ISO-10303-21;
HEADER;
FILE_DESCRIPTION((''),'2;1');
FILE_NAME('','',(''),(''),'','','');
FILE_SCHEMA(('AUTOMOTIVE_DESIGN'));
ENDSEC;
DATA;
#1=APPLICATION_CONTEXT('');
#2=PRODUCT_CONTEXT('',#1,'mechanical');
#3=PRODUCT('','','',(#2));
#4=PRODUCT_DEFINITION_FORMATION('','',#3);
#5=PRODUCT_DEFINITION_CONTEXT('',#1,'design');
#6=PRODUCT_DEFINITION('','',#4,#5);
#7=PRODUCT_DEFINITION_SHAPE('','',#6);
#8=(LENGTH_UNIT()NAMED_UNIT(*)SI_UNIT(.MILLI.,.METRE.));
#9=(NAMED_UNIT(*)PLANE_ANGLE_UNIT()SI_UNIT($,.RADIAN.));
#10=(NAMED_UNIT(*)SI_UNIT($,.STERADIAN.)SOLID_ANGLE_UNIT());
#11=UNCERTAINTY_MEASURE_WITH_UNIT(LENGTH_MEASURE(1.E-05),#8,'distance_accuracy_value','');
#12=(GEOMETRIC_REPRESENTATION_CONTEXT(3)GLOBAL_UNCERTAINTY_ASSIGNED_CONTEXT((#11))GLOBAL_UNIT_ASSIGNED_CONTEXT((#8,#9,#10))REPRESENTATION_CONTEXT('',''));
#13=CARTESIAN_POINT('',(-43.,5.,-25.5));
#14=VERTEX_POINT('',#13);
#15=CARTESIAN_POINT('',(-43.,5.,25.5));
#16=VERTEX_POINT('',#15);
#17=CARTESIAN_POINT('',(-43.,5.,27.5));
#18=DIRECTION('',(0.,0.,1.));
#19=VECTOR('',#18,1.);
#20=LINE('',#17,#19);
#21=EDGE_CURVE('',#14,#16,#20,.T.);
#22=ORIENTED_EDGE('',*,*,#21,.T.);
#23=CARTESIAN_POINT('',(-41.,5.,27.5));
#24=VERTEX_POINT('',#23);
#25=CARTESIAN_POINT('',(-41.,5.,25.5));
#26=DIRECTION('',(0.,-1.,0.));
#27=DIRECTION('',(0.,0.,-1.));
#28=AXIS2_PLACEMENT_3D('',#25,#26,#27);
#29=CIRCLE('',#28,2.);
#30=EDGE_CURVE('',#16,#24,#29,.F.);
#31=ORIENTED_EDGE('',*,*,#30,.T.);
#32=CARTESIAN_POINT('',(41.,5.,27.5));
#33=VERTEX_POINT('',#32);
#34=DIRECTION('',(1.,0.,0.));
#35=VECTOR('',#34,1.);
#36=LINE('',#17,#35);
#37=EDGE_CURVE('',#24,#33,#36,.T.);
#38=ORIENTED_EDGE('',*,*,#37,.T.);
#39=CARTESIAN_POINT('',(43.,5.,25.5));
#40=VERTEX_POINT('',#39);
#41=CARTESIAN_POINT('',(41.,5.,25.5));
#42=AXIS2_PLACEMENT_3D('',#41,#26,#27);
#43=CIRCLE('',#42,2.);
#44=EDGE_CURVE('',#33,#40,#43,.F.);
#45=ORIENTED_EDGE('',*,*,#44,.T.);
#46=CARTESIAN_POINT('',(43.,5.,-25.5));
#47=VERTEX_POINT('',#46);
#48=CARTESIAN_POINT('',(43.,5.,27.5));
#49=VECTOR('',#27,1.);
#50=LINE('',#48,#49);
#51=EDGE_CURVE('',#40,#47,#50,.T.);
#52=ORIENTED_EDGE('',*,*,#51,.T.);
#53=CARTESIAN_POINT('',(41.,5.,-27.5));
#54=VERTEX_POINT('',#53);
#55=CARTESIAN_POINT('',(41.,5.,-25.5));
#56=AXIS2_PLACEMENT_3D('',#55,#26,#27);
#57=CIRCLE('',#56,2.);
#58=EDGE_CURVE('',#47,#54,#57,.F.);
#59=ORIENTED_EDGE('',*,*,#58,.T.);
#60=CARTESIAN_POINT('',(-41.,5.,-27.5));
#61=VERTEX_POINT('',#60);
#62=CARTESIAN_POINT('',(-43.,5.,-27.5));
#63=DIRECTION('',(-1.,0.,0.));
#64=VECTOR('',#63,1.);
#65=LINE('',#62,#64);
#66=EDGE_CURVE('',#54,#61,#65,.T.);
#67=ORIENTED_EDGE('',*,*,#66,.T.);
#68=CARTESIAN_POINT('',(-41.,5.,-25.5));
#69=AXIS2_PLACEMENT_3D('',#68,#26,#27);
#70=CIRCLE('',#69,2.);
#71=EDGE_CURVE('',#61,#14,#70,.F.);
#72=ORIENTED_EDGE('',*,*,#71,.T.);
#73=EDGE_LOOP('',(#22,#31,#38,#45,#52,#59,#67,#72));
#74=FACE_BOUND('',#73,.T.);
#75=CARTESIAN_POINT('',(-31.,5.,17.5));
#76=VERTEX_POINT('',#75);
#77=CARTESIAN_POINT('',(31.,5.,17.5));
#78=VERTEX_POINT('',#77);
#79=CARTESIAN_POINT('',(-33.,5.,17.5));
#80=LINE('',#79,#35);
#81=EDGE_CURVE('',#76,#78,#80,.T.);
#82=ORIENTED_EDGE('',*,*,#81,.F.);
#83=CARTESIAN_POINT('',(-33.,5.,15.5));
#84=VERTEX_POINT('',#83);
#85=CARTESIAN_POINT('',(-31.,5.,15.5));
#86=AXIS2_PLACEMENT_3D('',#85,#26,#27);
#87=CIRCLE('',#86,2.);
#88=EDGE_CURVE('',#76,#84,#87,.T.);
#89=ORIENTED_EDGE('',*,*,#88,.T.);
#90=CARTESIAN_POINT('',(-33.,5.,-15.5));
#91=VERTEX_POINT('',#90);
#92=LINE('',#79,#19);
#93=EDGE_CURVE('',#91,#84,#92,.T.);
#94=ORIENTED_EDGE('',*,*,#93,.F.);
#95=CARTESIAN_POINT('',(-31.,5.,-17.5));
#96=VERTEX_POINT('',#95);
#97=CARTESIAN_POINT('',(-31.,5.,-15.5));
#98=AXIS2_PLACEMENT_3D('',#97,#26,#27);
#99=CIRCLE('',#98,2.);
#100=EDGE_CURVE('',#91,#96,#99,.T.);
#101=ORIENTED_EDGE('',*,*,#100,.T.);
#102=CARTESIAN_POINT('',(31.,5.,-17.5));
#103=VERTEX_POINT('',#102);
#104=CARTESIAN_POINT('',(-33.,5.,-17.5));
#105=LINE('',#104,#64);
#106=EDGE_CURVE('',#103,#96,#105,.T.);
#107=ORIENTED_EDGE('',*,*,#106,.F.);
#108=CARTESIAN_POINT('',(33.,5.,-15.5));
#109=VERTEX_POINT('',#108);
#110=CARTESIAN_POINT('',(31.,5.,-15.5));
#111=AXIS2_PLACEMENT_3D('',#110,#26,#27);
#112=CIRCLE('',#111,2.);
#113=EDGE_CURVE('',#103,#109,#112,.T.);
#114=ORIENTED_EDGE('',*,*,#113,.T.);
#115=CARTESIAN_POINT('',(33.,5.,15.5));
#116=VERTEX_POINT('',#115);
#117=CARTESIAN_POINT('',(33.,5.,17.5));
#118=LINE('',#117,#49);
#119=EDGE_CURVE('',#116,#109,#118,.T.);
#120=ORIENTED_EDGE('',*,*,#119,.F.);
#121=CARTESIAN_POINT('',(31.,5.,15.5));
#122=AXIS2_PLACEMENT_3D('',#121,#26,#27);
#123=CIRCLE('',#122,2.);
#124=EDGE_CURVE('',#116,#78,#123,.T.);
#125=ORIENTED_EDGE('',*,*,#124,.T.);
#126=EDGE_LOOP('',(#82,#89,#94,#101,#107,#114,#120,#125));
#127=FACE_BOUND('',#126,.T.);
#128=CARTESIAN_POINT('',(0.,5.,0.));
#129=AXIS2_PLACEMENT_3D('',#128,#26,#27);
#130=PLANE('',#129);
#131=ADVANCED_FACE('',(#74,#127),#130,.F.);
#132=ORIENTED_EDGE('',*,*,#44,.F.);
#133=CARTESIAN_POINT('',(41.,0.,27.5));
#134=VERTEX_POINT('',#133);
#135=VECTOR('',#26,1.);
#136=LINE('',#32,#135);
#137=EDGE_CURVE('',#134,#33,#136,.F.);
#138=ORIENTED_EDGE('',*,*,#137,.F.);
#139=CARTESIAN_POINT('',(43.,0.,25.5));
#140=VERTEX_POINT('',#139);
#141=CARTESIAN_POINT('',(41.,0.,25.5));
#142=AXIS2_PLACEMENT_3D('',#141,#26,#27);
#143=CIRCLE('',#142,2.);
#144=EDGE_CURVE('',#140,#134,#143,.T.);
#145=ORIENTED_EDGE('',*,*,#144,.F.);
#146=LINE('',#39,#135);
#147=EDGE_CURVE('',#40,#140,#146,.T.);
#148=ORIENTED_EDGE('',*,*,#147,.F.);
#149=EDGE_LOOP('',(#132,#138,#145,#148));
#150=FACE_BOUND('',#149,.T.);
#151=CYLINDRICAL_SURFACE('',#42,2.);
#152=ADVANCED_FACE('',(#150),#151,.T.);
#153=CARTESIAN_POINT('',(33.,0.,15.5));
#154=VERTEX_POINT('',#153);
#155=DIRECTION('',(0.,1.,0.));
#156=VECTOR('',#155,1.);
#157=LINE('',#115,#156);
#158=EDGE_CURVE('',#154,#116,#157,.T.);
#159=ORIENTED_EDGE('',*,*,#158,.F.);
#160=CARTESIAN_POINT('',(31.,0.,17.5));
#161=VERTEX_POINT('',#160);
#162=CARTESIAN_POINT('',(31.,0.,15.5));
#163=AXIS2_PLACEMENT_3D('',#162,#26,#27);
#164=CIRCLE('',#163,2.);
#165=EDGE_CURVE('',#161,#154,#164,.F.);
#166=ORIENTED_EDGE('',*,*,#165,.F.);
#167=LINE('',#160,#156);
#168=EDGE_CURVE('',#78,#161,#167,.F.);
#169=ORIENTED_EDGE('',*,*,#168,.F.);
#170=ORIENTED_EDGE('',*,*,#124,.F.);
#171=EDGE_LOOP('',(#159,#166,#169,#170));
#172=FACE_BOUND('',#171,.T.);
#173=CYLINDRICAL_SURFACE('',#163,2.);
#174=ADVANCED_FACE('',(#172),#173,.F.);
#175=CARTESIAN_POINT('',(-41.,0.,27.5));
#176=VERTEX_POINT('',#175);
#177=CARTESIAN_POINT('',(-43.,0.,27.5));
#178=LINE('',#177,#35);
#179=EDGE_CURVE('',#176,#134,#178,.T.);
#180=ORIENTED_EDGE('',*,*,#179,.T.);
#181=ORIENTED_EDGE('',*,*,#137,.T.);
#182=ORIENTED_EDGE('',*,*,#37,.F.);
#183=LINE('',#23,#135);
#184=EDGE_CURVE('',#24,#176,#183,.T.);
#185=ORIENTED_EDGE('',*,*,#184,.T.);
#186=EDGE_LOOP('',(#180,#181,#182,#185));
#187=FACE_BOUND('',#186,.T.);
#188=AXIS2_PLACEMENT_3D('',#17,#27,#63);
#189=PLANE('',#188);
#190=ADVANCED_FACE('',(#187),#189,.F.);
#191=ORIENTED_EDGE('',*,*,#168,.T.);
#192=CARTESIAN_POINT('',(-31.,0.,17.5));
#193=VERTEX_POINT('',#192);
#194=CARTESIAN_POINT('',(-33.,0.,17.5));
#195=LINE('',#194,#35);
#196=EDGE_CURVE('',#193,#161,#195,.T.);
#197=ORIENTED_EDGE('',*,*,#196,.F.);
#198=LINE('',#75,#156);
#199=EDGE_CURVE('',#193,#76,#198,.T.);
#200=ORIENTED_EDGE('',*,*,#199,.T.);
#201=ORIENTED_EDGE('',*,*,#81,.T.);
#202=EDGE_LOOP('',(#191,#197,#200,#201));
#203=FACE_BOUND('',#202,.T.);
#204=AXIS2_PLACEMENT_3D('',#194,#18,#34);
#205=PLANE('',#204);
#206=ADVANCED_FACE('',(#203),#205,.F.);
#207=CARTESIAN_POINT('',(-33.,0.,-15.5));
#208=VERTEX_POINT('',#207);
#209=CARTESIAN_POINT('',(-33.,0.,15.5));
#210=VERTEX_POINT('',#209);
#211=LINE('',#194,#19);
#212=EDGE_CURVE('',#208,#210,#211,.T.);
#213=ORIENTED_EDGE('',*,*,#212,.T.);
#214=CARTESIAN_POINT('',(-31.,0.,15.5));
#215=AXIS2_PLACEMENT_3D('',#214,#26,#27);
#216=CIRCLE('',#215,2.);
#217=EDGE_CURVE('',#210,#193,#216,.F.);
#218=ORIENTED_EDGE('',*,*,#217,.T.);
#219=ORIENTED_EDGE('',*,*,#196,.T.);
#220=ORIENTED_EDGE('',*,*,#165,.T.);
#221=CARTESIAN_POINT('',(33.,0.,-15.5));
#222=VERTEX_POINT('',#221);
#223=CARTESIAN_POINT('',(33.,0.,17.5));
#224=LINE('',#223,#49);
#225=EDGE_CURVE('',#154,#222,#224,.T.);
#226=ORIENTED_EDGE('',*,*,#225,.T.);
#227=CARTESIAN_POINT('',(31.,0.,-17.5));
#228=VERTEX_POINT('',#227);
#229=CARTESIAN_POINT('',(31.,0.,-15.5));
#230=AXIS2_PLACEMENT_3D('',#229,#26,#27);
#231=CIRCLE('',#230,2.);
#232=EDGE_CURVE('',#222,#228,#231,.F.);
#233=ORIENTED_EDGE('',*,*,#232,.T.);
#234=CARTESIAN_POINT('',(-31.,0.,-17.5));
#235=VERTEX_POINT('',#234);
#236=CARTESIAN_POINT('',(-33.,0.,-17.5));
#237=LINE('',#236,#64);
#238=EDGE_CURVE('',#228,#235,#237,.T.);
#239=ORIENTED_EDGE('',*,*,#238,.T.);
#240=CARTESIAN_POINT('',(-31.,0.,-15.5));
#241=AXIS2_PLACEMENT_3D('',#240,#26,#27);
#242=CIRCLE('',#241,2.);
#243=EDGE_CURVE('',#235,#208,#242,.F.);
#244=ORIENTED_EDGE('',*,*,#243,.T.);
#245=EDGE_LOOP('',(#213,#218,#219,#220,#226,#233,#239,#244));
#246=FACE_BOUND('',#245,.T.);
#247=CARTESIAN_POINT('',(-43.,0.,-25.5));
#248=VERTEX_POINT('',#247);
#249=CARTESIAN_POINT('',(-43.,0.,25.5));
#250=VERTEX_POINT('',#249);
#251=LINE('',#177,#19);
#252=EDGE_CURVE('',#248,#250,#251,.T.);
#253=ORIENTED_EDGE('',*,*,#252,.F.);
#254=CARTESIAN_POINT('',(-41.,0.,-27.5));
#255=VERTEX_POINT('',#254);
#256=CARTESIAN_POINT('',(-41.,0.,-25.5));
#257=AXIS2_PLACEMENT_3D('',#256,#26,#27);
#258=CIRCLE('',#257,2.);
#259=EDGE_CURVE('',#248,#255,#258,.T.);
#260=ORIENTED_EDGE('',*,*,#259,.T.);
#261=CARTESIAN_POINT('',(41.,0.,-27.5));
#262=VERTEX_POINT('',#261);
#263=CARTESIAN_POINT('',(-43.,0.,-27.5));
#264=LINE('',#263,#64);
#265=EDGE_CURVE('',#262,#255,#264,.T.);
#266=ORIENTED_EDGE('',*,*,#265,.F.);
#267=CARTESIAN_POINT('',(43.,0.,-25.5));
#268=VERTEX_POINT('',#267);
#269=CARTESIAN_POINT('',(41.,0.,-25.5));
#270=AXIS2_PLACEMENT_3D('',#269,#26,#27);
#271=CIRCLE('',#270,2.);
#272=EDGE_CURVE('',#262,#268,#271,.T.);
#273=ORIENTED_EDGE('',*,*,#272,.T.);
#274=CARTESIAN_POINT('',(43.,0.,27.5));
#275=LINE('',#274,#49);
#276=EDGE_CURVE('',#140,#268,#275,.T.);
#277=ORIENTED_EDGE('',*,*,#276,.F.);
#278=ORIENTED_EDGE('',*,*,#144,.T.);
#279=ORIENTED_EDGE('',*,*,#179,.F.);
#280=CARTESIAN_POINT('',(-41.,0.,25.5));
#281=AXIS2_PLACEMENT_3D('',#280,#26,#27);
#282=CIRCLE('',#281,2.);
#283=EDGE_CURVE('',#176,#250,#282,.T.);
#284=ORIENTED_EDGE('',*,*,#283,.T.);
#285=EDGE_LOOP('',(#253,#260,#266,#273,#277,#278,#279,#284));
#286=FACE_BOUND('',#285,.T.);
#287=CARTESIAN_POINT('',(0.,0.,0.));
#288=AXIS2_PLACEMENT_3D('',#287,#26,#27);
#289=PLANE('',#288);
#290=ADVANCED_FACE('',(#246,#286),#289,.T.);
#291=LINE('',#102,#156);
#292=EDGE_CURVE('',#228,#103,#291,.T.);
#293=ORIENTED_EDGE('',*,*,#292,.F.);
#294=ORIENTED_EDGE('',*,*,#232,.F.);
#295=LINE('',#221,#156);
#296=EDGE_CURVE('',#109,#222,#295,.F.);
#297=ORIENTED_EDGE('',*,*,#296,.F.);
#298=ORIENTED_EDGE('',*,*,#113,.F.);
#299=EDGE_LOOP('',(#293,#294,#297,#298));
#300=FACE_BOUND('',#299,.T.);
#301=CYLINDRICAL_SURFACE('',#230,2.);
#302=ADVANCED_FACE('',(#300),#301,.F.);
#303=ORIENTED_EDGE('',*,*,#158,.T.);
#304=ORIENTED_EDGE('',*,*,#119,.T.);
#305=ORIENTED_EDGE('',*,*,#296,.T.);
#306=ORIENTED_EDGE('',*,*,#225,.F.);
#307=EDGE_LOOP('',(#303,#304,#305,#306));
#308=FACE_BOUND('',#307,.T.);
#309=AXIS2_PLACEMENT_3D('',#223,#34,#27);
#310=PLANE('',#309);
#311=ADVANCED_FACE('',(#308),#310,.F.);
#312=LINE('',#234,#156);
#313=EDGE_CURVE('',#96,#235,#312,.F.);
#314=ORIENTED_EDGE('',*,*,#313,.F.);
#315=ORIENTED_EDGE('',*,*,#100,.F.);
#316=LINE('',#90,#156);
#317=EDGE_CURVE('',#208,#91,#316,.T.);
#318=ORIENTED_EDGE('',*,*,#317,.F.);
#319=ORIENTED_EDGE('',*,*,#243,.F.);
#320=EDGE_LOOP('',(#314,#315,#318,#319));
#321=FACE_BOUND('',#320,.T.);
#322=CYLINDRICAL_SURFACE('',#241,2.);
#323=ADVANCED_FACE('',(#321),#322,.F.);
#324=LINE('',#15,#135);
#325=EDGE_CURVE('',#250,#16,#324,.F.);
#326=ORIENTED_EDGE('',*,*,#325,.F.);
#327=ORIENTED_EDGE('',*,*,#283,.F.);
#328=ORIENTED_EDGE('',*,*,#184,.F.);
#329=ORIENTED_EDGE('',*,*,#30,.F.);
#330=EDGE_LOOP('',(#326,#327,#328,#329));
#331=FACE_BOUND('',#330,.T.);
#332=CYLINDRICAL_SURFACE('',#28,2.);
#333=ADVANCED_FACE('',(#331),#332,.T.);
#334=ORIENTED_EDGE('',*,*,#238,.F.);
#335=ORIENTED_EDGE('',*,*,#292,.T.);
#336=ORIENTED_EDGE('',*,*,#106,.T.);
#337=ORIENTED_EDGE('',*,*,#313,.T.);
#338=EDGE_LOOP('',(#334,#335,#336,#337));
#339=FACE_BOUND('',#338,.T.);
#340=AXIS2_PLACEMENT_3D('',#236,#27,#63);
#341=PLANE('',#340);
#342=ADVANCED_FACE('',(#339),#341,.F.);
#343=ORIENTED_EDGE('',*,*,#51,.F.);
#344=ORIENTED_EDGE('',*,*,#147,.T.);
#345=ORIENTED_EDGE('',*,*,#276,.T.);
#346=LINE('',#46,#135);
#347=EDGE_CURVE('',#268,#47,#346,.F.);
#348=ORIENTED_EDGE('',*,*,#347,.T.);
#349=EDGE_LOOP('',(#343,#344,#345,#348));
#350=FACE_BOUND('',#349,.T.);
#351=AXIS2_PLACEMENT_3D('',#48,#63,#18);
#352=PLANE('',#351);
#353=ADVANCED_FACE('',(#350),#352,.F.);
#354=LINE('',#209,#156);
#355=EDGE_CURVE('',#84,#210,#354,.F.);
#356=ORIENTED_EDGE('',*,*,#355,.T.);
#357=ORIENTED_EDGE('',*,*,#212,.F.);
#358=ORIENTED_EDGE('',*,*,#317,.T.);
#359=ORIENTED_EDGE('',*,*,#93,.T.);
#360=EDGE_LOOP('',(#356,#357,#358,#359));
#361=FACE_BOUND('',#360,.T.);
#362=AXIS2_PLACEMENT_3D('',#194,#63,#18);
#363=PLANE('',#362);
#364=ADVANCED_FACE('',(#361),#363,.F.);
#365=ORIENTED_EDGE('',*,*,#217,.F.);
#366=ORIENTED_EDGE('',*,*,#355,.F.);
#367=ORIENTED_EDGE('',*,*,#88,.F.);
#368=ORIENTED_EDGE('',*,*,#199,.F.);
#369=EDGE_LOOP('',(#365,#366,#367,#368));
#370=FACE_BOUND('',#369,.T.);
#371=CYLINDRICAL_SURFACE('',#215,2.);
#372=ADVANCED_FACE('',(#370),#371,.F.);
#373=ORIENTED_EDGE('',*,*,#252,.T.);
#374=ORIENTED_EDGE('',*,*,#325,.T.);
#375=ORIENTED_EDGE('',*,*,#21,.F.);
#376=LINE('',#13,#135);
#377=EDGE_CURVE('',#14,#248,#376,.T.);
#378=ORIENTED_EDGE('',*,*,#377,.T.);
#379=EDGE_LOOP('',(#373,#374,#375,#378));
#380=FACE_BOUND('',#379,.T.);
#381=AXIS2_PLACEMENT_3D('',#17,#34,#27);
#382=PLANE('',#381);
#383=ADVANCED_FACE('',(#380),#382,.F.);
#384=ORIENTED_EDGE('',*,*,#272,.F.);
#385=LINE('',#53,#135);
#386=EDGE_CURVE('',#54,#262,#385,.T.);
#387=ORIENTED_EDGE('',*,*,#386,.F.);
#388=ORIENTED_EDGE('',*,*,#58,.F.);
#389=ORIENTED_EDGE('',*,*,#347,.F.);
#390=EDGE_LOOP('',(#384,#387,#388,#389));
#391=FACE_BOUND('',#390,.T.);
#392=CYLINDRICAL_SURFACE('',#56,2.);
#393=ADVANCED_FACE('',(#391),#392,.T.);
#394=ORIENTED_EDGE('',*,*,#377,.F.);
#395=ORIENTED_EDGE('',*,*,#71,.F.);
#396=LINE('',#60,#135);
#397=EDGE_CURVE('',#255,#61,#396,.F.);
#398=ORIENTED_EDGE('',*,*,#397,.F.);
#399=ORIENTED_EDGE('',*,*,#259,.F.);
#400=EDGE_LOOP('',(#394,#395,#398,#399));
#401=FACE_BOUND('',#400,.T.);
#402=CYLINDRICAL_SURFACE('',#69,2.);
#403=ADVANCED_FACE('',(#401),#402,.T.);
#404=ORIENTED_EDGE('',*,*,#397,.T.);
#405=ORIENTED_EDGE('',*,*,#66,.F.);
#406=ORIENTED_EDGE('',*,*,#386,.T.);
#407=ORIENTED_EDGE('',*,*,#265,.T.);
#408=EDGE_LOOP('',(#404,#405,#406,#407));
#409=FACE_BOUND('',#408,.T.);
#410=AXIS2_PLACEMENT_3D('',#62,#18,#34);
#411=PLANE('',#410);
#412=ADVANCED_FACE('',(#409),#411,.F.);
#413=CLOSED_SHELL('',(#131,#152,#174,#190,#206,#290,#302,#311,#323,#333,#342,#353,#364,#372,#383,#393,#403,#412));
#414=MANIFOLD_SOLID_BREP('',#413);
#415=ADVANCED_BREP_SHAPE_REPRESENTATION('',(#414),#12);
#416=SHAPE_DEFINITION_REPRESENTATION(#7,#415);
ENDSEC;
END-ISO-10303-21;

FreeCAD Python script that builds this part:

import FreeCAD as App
import Part
import Sketcher

V = App.Vector


def edges_at(feature, points):
    """Names of the edges that pass closest to the given points."""
    edges = feature.Shape.Edges
    near = lambda p: min(range(len(edges)), key=lambda i: edges[i].distToShape(Part.Vertex(*p))[0])
    return sorted({f"Edge{near(p) + 1}" for p in points})

doc = App.newDocument("Part")
params = doc.addObject("Spreadsheet::Sheet", "Params")
for row, (alias, value) in enumerate([
    ("sketch1_width", "86 mm"),
    ("sketch1_height", "55 mm"),
    ("pad1_length", "5 mm"),
    ("sketch2_diameter", "15 mm"),
    ("sketch3_width", "66 mm"),
    ("sketch3_height", "35 mm"),
    ("fillet_radius", "2 mm"),
], start=1):
    params.set(f"A{row}", alias)
    params.set(f"B{row}", "=" + value)
    params.setAlias(f"B{row}", alias)

body = doc.addObject("PartDesign::Body", "Body")

# Sketch on XZ plane
sketch1 = body.newObject("Sketcher::SketchObject", "Sketch")
sketch1.AttachmentSupport = (doc.getObject("XZ_Plane"), [""])
sketch1.MapMode = "FlatFace"
sketch1.addGeometry(Part.LineSegment(V(-43, -27.5, 0), V(-43, 27.5, 0)), False)
sketch1.addGeometry(Part.LineSegment(V(-43, 27.5, 0), V(43, 27.5, 0)), False)
sketch1.addGeometry(Part.LineSegment(V(43, 27.5, 0), V(43, -27.5, 0)), False)
sketch1.addGeometry(Part.LineSegment(V(43, -27.5, 0), V(-43, -27.5, 0)), False)
sketch1.addConstraint(Sketcher.Constraint("Coincident", 0, 2, 1, 1))
sketch1.addConstraint(Sketcher.Constraint("Coincident", 1, 2, 2, 1))
sketch1.addConstraint(Sketcher.Constraint("Coincident", 2, 2, 3, 1))
sketch1.addConstraint(Sketcher.Constraint("Coincident", 3, 2, 0, 1))
sketch1.addConstraint(Sketcher.Constraint("Vertical", 0))
sketch1.addConstraint(Sketcher.Constraint("Horizontal", 1))
sketch1.addConstraint(Sketcher.Constraint("Vertical", 2))
sketch1.addConstraint(Sketcher.Constraint("Horizontal", 3))
sketch1.addConstraint(Sketcher.Constraint("Symmetric", 0, 2, 2, 2, -1, 1))
sketch1.addConstraint(Sketcher.Constraint("DistanceX", 1, 1, 1, 2, 86.0))
sketch1.addConstraint(Sketcher.Constraint("DistanceY", 0, 1, 0, 2, 55.0))
sketch1.setExpression("Constraints[9]", "Params.sketch1_width")
sketch1.setExpression("Constraints[10]", "Params.sketch1_height")
pad1 = body.newObject("PartDesign::Pad", "Pad")
pad1.Profile = sketch1
pad1.setExpression("Length", "Params.pad1_length")
pad1.Reversed = True

# Sketch on XZ plane
sketch2 = body.newObject("Sketcher::SketchObject", "Sketch001")
sketch2.AttachmentSupport = (doc.getObject("XZ_Plane"), [""])
sketch2.MapMode = "FlatFace"
sketch2.AttachmentOffset = App.Placement(V(0, 0, -5), App.Rotation())
sketch2.addGeometry(Part.Circle(V(19, 2.5, 0), V(0, 0, 1), 7.5), False)
sketch2.addConstraint(Sketcher.Constraint("Diameter", 0, 15.0))
sketch2.addConstraint(Sketcher.Constraint("DistanceX", -1, 1, 0, 3, 19.0))
sketch2.addConstraint(Sketcher.Constraint("DistanceY", -1, 1, 0, 3, 2.5))
sketch2.setExpression("Constraints[0]", "Params.sketch2_diameter")
pocket1 = body.newObject("PartDesign::Pocket", "Pocket")
pocket1.Profile = sketch2
pocket1.Type = "ThroughAll"
pocket1.Reversed = True

# Sketch on XZ plane
sketch3 = body.newObject("Sketcher::SketchObject", "Sketch002")
sketch3.AttachmentSupport = (doc.getObject("XZ_Plane"), [""])
sketch3.MapMode = "FlatFace"
sketch3.AttachmentOffset = App.Placement(V(0, 0, -5), App.Rotation())
sketch3.addGeometry(Part.LineSegment(V(-33, -17.5, 0), V(-33, 17.5, 0)), False)
sketch3.addGeometry(Part.LineSegment(V(-33, 17.5, 0), V(33, 17.5, 0)), False)
sketch3.addGeometry(Part.LineSegment(V(33, 17.5, 0), V(33, -17.5, 0)), False)
sketch3.addGeometry(Part.LineSegment(V(33, -17.5, 0), V(-33, -17.5, 0)), False)
sketch3.addConstraint(Sketcher.Constraint("Coincident", 0, 2, 1, 1))
sketch3.addConstraint(Sketcher.Constraint("Coincident", 1, 2, 2, 1))
sketch3.addConstraint(Sketcher.Constraint("Coincident", 2, 2, 3, 1))
sketch3.addConstraint(Sketcher.Constraint("Coincident", 3, 2, 0, 1))
sketch3.addConstraint(Sketcher.Constraint("Vertical", 0))
sketch3.addConstraint(Sketcher.Constraint("Horizontal", 1))
sketch3.addConstraint(Sketcher.Constraint("Vertical", 2))
sketch3.addConstraint(Sketcher.Constraint("Horizontal", 3))
sketch3.addConstraint(Sketcher.Constraint("Symmetric", 0, 2, 2, 2, -1, 1))
sketch3.addConstraint(Sketcher.Constraint("DistanceX", 1, 1, 1, 2, 66.0))
sketch3.addConstraint(Sketcher.Constraint("DistanceY", 0, 1, 0, 2, 35.0))
sketch3.setExpression("Constraints[9]", "Params.sketch3_width")
sketch3.setExpression("Constraints[10]", "Params.sketch3_height")
pocket2 = body.newObject("PartDesign::Pocket", "Pocket001")
pocket2.Profile = sketch3
pocket2.Type = "ThroughAll"
pocket2.Reversed = True
doc.recompute()

fillet = body.newObject("PartDesign::Fillet", "Fillet")
fillet.Base = (pocket2, edges_at(pocket2, [
    (33, 2.5, -17.5),
    (33, 2.5, 17.5),
    (-33, 2.5, 17.5),
    (-33, 2.5, -17.5),
    (43, 2.5, 27.5),
    (-43, 2.5, 27.5),
    (-43, 2.5, -27.5),
    (43, 2.5, -27.5),
]))
fillet.setExpression("Radius", "Params.fillet_radius")

doc.recompute()
